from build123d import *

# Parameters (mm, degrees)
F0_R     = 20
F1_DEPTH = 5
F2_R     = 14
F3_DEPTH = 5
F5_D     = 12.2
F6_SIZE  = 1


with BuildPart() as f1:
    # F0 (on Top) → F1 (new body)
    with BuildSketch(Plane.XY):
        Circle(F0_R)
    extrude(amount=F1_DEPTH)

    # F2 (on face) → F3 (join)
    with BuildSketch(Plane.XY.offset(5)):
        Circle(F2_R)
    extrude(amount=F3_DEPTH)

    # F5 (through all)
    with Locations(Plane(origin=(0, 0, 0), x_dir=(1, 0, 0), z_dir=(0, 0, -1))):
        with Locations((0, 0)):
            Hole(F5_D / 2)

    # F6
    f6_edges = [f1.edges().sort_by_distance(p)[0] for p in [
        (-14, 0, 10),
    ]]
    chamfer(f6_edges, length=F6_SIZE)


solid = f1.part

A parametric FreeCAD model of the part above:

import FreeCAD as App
import Part
import Sketcher
Q = App.Units.Quantity


def edges_at(feature, points):
    """Names of the edges that pass closest to the given points."""
    edges = feature.Shape.Edges
    near = lambda p: min(range(len(edges)), key=lambda i: edges[i].distToShape(Part.Vertex(*p))[0])
    return sorted({f"Edge{near(p) + 1}" for p in points})

doc = App.newDocument("Part")
body = doc.addObject("PartDesign::Body", "Body")

# Sketch on XY plane
sketch1 = doc.addObject("Sketcher::SketchObject", "Sketch")
body.addObject(sketch1)
sketch1.AttachmentSupport = (doc.XY_Plane, [""])
sketch1.MapMode = "FlatFace"
sketch1.addGeometry(Part.Circle(App.Vector(0, 0, 0), App.Vector(0, 0, 1), 20), False)
sketch1.addConstraint([
    Sketcher.Constraint("Coincident", 0, 3, -1, 1),
    Sketcher.Constraint("Diameter", 0, Q("40 mm")),
])
pad1 = doc.addObject("PartDesign::Pad", "Pad")
body.addObject(pad1)
pad1.Profile = sketch1
pad1.Length = 5

# Sketch on XY plane
sketch2 = doc.addObject("Sketcher::SketchObject", "Sketch001")
body.addObject(sketch2)
sketch2.AttachmentSupport = (doc.XY_Plane, [""])
sketch2.MapMode = "FlatFace"
sketch2.AttachmentOffset = App.Placement(App.Vector(0, 0, 5), App.Rotation())
sketch2.addGeometry(Part.Circle(App.Vector(0, 0, 0), App.Vector(0, 0, 1), 14), False)
sketch2.addConstraint([
    Sketcher.Constraint("Coincident", 0, 3, -1, 1),
    Sketcher.Constraint("Diameter", 0, Q("28 mm")),
])
pad2 = doc.addObject("PartDesign::Pad", "Pad001")
body.addObject(pad2)
pad2.Profile = sketch2
pad2.Length = 5

# Sketch on XY plane
sketch3 = doc.addObject("Sketcher::SketchObject", "Sketch002")
body.addObject(sketch3)
sketch3.AttachmentSupport = (doc.XY_Plane, [""])
sketch3.MapMode = "FlatFace"
sketch3.addGeometry(Part.Circle(App.Vector(0, 0, 0), App.Vector(0, 0, 1), 6), False)
sketch3.addConstraint([
    Sketcher.Constraint("Coincident", 0, 3, -1, 1),
    Sketcher.Constraint("Diameter", 0, Q("12.2 mm")),
])
doc.recompute()
hole = doc.addObject("PartDesign::Hole", "Hole")
body.addObject(hole)
hole.Profile = sketch3
hole.ThreadType = "None"
hole.Diameter = 12.2
hole.DepthType = "ThroughAll"
hole.Reversed = True
doc.recompute()

chamfer = doc.addObject("PartDesign::Chamfer", "Chamfer")
body.addObject(chamfer)
chamfer.Base = (hole, edges_at(hole, [(-14, 0, 10)]))
chamfer.Size = 1

doc.recompute()
